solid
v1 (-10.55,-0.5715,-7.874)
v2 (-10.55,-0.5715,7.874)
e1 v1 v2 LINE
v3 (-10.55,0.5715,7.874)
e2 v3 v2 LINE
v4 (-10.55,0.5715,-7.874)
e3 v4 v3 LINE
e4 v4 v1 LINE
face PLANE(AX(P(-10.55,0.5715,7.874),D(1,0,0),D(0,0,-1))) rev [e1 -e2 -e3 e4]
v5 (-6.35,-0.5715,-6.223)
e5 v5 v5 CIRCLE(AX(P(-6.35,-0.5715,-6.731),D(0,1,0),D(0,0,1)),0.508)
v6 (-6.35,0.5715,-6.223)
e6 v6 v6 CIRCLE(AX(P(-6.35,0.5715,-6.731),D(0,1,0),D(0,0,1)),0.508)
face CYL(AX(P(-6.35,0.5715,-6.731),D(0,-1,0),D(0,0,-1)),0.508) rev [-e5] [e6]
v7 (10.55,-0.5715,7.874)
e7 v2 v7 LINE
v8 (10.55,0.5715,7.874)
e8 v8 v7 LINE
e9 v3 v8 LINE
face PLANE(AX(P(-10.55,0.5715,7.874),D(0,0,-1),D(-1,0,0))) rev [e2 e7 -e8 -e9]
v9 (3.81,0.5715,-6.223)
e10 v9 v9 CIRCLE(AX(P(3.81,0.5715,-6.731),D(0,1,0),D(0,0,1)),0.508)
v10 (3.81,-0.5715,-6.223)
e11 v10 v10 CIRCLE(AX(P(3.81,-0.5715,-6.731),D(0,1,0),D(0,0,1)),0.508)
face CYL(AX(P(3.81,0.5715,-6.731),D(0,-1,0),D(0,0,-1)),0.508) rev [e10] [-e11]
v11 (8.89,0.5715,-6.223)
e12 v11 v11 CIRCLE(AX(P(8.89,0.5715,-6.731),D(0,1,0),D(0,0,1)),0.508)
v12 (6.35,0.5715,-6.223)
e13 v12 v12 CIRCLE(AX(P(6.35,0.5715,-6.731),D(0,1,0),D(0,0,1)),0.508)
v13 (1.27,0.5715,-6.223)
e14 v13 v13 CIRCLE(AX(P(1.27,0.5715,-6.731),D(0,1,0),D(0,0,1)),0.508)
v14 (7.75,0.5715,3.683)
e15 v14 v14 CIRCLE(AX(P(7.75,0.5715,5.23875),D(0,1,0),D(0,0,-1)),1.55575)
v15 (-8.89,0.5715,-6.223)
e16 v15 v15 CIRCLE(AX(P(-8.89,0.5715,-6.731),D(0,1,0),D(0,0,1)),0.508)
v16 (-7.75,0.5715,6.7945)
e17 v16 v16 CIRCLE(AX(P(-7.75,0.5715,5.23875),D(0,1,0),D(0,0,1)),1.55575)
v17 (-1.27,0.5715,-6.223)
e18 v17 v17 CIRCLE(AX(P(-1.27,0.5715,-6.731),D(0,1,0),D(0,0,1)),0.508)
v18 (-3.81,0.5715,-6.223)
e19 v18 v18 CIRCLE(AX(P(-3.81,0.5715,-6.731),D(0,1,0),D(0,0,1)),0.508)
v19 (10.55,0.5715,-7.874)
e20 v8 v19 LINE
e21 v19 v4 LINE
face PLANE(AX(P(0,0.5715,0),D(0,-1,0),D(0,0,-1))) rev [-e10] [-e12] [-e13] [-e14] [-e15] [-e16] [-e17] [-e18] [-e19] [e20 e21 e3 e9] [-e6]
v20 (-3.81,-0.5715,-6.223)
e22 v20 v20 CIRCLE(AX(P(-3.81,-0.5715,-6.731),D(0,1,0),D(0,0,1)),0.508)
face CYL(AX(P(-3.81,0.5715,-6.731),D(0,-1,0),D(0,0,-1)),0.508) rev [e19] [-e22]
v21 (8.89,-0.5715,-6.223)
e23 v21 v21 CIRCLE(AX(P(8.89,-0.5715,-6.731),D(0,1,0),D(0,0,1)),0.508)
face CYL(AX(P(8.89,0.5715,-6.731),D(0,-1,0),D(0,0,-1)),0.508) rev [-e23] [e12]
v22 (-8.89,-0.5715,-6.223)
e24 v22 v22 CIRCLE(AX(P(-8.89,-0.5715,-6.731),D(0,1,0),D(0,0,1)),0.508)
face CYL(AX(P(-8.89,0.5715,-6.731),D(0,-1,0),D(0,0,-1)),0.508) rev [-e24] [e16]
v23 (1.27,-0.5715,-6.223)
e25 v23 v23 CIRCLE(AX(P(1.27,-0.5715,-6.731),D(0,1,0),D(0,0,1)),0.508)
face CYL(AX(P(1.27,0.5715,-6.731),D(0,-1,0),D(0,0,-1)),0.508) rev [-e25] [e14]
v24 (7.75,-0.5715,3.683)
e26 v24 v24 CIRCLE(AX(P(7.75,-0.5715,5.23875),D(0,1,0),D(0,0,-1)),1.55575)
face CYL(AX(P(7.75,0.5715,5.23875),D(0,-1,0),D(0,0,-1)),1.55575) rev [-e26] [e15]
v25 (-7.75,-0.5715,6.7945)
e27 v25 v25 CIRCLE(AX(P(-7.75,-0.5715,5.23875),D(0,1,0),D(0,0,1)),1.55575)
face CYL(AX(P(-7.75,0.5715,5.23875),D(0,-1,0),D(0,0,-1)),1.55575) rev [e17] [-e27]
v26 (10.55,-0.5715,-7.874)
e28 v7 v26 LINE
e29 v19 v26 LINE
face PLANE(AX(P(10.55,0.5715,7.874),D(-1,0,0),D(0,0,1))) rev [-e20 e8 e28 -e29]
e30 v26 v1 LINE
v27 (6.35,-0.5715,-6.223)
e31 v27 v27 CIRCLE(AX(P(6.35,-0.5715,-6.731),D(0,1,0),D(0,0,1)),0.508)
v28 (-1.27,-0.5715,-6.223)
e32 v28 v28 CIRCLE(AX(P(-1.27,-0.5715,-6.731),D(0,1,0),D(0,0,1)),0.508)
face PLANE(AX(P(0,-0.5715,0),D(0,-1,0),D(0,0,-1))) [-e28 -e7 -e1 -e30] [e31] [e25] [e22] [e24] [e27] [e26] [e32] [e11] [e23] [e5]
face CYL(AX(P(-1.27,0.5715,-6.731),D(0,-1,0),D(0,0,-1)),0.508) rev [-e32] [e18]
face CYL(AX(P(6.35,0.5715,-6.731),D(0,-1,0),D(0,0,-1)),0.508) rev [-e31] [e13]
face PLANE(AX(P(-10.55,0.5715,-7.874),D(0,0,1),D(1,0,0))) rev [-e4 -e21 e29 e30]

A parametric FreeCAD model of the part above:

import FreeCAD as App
import Part
import Sketcher
Q = App.Units.Quantity


def add_polygon(sketch, points):
    """Adds a closed chain of lines whose ends are joined by coincident constraints."""
    first, n = sketch.GeometryCount, len(points)
    for a, b in zip(points, points[1:] + points[:1]):
        sketch.addGeometry(Part.LineSegment(App.Vector(*a, 0), App.Vector(*b, 0)), False)
    for i in range(n):
        sketch.addConstraint(Sketcher.Constraint("Coincident", first + i, 2, first + (i + 1) % n, 1))

doc = App.newDocument("Part")
params = doc.addObject("Spreadsheet::Sheet", "Params")
for row, (alias, value) in enumerate([
    ("sketch1_diameter", "0.04 in"),
    ("sketch1_height", "0.62 in"),
    ("pad1_length", "0.045 in"),
], start=1):
    params.set(f"A{row}", alias)
    params.set(f"B{row}", "=" + value)
    params.setAlias(f"B{row}", alias)

body = doc.addObject("PartDesign::Body", "Body")

sketch1 = doc.addObject("Sketcher::SketchObject", "Sketch")
body.addObject(sketch1)
sketch1.AttachmentSupport = (doc.XZ_Plane, [""])
sketch1.MapMode = "FlatFace"
add_polygon(sketch1, [(-10.6, -7.9), (-10.6, 7.9), (10.6, 7.9), (10.6, -7.9)])
sketch1.addGeometry(Part.Circle(App.Vector(-7.8, 5.2, 0), App.Vector(0, 0, 1), 1.6), False)
sketch1.addGeometry(Part.Circle(App.Vector(7.8, 5.2, 0), App.Vector(0, 0, 1), 1.6), False)
sketch1.addGeometry(Part.Circle(App.Vector(-8.9, -6.7, 0), App.Vector(0, 0, 1), 0.5), False)
sketch1.addGeometry(Part.Circle(App.Vector(-6.3, -6.7, 0), App.Vector(0, 0, 1), 0.5), False)
sketch1.addGeometry(Part.Circle(App.Vector(-3.8, -6.7, 0), App.Vector(0, 0, 1), 0.5), False)
sketch1.addGeometry(Part.Circle(App.Vector(-1.3, -6.7, 0), App.Vector(0, 0, 1), 0.5), False)
sketch1.addGeometry(Part.Circle(App.Vector(1.3, -6.7, 0), App.Vector(0, 0, 1), 0.5), False)
sketch1.addGeometry(Part.Circle(App.Vector(3.8, -6.7, 0), App.Vector(0, 0, 1), 0.5), False)
sketch1.addGeometry(Part.Circle(App.Vector(6.3, -6.7, 0), App.Vector(0, 0, 1), 0.5), False)
sketch1.addGeometry(Part.Circle(App.Vector(8.9, -6.7, 0), App.Vector(0, 0, 1), 0.5), False)
sketch1.addConstraint([
    Sketcher.Constraint("Vertical", 0),
    Sketcher.Constraint("Horizontal", 1),
    Sketcher.Constraint("Vertical", 2),
    Sketcher.Constraint("Horizontal", 3),
    Sketcher.Constraint("Equal", 4, 5),
    Sketcher.Constraint("Equal", 6, 7),
    Sketcher.Constraint("Equal", 7, 8),
    Sketcher.Constraint("Equal", 8, 9),
    Sketcher.Constraint("Equal", 9, 10),
    Sketcher.Constraint("Equal", 10, 11),
    Sketcher.Constraint("Equal", 11, 12),
    Sketcher.Constraint("Equal", 12, 13),
    Sketcher.Constraint("Symmetric", 0, 2, 2, 2, -1, 1),
    Sketcher.Constraint("Symmetric", 4, 3, 5, 3, -2),
    Sketcher.Constraint("Symmetric", 9, 3, 10, 3, -2),
    Sketcher.Constraint("Symmetric", 8, 3, 11, 3, -2),
    Sketcher.Constraint("Symmetric", 7, 3, 12, 3, -2),
    Sketcher.Constraint("Symmetric", 6, 3, 13, 3, -2),
    Sketcher.Constraint("Horizontal", 6, 3, 7, 3),
    Sketcher.Constraint("Horizontal", 7, 3, 8, 3),
    Sketcher.Constraint("Horizontal", 8, 3, 9, 3),
    Sketcher.Constraint("Diameter", 6, Q("0.04 in")),
    Sketcher.Constraint("Diameter", 4, Q("0.1225 in")),
    Sketcher.Constraint("DistanceY", 0, 1, 0, 2, Q("0.62 in")),
    Sketcher.Constraint("DistanceX", 6, 3, 7, 3, Q("0.1 in")),
    Sketcher.Constraint("DistanceX", 7, 3, 8, 3, Q("0.1 in")),
    Sketcher.Constraint("DistanceX", 8, 3, 9, 3, Q("0.1 in")),
    Sketcher.Constraint("DistanceX", 9, 3, 10, 3, Q("0.1 in")),
    Sketcher.Constraint("DistanceY", 6, 3, -1, 1, Q("0.265 in")),
    Sketcher.Constraint("DistanceX", 1, 1, 1, 2, 21.1),
    Sketcher.Constraint("DistanceX", 4, 3, -1, 1, 7.75),
    Sketcher.Constraint("DistanceY", -1, 1, 4, 3, 5.23875),
])
sketch1.setExpression("Constraints[25]", "Params.sketch1_diameter")
sketch1.setExpression("Constraints[27]", "Params.sketch1_height")
pad1 = doc.addObject("PartDesign::Pad", "Pad")
body.addObject(pad1)
pad1.Profile = sketch1
pad1.setExpression("Length", "Params.pad1_length")
pad1.Midplane = True

doc.recompute()
